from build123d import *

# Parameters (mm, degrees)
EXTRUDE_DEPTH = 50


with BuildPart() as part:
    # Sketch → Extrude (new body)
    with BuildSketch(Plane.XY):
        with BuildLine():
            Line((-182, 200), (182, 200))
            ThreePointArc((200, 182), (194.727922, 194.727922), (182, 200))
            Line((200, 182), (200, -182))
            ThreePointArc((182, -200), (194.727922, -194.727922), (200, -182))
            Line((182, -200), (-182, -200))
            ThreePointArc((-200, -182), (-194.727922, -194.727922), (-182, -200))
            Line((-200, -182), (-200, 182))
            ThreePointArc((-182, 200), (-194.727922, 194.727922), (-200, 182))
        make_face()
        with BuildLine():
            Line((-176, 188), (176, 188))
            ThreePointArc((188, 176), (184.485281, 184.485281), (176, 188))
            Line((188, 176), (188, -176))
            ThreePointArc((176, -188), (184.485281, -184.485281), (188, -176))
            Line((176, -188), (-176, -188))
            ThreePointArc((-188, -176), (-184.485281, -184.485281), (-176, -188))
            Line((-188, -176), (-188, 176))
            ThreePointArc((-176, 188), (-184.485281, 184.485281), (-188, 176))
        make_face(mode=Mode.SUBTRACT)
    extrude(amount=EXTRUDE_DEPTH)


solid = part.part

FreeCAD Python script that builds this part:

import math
import FreeCAD as App
import Part
import Sketcher

doc = App.newDocument("Part")
body = doc.addObject("PartDesign::Body", "Body")

# Sketch on XY plane
sketch1 = doc.addObject("Sketcher::SketchObject", "Sketch")
body.addObject(sketch1)
sketch1.AttachmentSupport = (doc.XY_Plane, [""])
sketch1.MapMode = "FlatFace"
sketch1.addGeometry(Part.LineSegment(App.Vector(182, 200, 0), App.Vector(-182, 200, 0)), False)
sketch1.addGeometry(Part.ArcOfCircle(Part.Circle(App.Vector(-182, 182, 0), App.Vector(0, 0, 1), 18), math.radians(90.000001), math.radians(179.999999)), False)
sketch1.addGeometry(Part.LineSegment(App.Vector(-200, 182, 0), App.Vector(-200, -182, 0)), False)
sketch1.addGeometry(Part.ArcOfCircle(Part.Circle(App.Vector(-182, -182, 0), App.Vector(0, 0, 1), 18), math.radians(-179.999999), math.radians(-90.000001)), False)
sketch1.addGeometry(Part.LineSegment(App.Vector(-182, -200, 0), App.Vector(182, -200, 0)), False)
sketch1.addGeometry(Part.ArcOfCircle(Part.Circle(App.Vector(182, -182, 0), App.Vector(0, 0, 1), 18), math.radians(-89.999999), math.radians(-0.000001)), False)
sketch1.addGeometry(Part.LineSegment(App.Vector(200, -182, 0), App.Vector(200, 182, 0)), False)
sketch1.addGeometry(Part.ArcOfCircle(Part.Circle(App.Vector(182, 182, 0), App.Vector(0, 0, 1), 18), math.radians(0.000001), math.radians(89.999999)), False)
sketch1.addGeometry(Part.LineSegment(App.Vector(-176, 188, 0), App.Vector(176, 188, 0)), False)
sketch1.addGeometry(Part.ArcOfCircle(Part.Circle(App.Vector(175.999999, 175.999999, 0), App.Vector(0, 0, 1), 12.000001), math.radians(0.000006), math.radians(89.999994)), False)
sketch1.addGeometry(Part.LineSegment(App.Vector(188, 176, 0), App.Vector(188, -176, 0)), False)
sketch1.addGeometry(Part.ArcOfCircle(Part.Circle(App.Vector(175.999999, -175.999999, 0), App.Vector(0, 0, 1), 12.000001), math.radians(-89.999994), math.radians(-0.000006)), False)
sketch1.addGeometry(Part.LineSegment(App.Vector(176, -188, 0), App.Vector(-176, -188, 0)), False)
sketch1.addGeometry(Part.ArcOfCircle(Part.Circle(App.Vector(-175.999999, -175.999999, 0), App.Vector(0, 0, 1), 12.000001), math.radians(-179.999994), math.radians(-90.000006)), False)
sketch1.addGeometry(Part.LineSegment(App.Vector(-188, -176, 0), App.Vector(-188, 176, 0)), False)
sketch1.addGeometry(Part.ArcOfCircle(Part.Circle(App.Vector(-175.999999, 175.999999, 0), App.Vector(0, 0, 1), 12.000001), math.radians(90.000006), math.radians(179.999994)), False)
sketch1.addConstraint(Sketcher.Constraint("Tangent", 0, 2, 1, 1))
sketch1.addConstraint(Sketcher.Constraint("Tangent", 1, 2, 2, 1))
sketch1.addConstraint(Sketcher.Constraint("Tangent", 2, 2, 3, 1))
sketch1.addConstraint(Sketcher.Constraint("Tangent", 3, 2, 4, 1))
sketch1.addConstraint(Sketcher.Constraint("Tangent", 4, 2, 5, 1))
sketch1.addConstraint(Sketcher.Constraint("Tangent", 5, 2, 6, 1))
sketch1.addConstraint(Sketcher.Constraint("Tangent", 6, 2, 7, 1))
sketch1.addConstraint(Sketcher.Constraint("Tangent", 7, 2, 0, 1))
sketch1.addConstraint(Sketcher.Constraint("Tangent", 8, 2, 9, 2))
sketch1.addConstraint(Sketcher.Constraint("Tangent", 9, 1, 10, 1))
sketch1.addConstraint(Sketcher.Constraint("Tangent", 10, 2, 11, 2))
sketch1.addConstraint(Sketcher.Constraint("Tangent", 11, 1, 12, 1))
sketch1.addConstraint(Sketcher.Constraint("Tangent", 12, 2, 13, 2))
sketch1.addConstraint(Sketcher.Constraint("Tangent", 13, 1, 14, 1))
sketch1.addConstraint(Sketcher.Constraint("Tangent", 14, 2, 15, 2))
sketch1.addConstraint(Sketcher.Constraint("Tangent", 15, 1, 8, 1))
sketch1.addConstraint(Sketcher.Constraint("Horizontal", 0))
sketch1.addConstraint(Sketcher.Constraint("Vertical", 2))
sketch1.addConstraint(Sketcher.Constraint("Horizontal", 4))
sketch1.addConstraint(Sketcher.Constraint("Vertical", 6))
sketch1.addConstraint(Sketcher.Constraint("Horizontal", 8))
sketch1.addConstraint(Sketcher.Constraint("Vertical", 10))
sketch1.addConstraint(Sketcher.Constraint("Horizontal", 12))
sketch1.addConstraint(Sketcher.Constraint("Vertical", 14))
sketch1.addConstraint(Sketcher.Constraint("Equal", 1, 3))
sketch1.addConstraint(Sketcher.Constraint("Equal", 3, 5))
sketch1.addConstraint(Sketcher.Constraint("Equal", 5, 7))
sketch1.addConstraint(Sketcher.Constraint("Equal", 9, 11))
sketch1.addConstraint(Sketcher.Constraint("Equal", 11, 13))
sketch1.addConstraint(Sketcher.Constraint("Equal", 13, 15))
sketch1.addConstraint(Sketcher.Constraint("Symmetric", 1, 3, 5, 3, -1, 1))
sketch1.addConstraint(Sketcher.Constraint("Symmetric", 9, 3, 13, 3, -1, 1))
sketch1.addConstraint(Sketcher.Constraint("Equal", 4, 2))
sketch1.addConstraint(Sketcher.Constraint("Equal", 12, 10))
sketch1.addConstraint(Sketcher.Constraint("Radius", 1, 18.0))
sketch1.addConstraint(Sketcher.Constraint("Radius", 9, 12.000001))
sketch1.addConstraint(Sketcher.Constraint("DistanceX", 0, 2, 0, 1, 364.0))
sketch1.addConstraint(Sketcher.Constraint("DistanceX", 8, 1, 8, 2, 352.0))
pad1 = doc.addObject("PartDesign::Pad", "Pad")
body.addObject(pad1)
pad1.Profile = sketch1
pad1.Length = 50

doc.recompute()
